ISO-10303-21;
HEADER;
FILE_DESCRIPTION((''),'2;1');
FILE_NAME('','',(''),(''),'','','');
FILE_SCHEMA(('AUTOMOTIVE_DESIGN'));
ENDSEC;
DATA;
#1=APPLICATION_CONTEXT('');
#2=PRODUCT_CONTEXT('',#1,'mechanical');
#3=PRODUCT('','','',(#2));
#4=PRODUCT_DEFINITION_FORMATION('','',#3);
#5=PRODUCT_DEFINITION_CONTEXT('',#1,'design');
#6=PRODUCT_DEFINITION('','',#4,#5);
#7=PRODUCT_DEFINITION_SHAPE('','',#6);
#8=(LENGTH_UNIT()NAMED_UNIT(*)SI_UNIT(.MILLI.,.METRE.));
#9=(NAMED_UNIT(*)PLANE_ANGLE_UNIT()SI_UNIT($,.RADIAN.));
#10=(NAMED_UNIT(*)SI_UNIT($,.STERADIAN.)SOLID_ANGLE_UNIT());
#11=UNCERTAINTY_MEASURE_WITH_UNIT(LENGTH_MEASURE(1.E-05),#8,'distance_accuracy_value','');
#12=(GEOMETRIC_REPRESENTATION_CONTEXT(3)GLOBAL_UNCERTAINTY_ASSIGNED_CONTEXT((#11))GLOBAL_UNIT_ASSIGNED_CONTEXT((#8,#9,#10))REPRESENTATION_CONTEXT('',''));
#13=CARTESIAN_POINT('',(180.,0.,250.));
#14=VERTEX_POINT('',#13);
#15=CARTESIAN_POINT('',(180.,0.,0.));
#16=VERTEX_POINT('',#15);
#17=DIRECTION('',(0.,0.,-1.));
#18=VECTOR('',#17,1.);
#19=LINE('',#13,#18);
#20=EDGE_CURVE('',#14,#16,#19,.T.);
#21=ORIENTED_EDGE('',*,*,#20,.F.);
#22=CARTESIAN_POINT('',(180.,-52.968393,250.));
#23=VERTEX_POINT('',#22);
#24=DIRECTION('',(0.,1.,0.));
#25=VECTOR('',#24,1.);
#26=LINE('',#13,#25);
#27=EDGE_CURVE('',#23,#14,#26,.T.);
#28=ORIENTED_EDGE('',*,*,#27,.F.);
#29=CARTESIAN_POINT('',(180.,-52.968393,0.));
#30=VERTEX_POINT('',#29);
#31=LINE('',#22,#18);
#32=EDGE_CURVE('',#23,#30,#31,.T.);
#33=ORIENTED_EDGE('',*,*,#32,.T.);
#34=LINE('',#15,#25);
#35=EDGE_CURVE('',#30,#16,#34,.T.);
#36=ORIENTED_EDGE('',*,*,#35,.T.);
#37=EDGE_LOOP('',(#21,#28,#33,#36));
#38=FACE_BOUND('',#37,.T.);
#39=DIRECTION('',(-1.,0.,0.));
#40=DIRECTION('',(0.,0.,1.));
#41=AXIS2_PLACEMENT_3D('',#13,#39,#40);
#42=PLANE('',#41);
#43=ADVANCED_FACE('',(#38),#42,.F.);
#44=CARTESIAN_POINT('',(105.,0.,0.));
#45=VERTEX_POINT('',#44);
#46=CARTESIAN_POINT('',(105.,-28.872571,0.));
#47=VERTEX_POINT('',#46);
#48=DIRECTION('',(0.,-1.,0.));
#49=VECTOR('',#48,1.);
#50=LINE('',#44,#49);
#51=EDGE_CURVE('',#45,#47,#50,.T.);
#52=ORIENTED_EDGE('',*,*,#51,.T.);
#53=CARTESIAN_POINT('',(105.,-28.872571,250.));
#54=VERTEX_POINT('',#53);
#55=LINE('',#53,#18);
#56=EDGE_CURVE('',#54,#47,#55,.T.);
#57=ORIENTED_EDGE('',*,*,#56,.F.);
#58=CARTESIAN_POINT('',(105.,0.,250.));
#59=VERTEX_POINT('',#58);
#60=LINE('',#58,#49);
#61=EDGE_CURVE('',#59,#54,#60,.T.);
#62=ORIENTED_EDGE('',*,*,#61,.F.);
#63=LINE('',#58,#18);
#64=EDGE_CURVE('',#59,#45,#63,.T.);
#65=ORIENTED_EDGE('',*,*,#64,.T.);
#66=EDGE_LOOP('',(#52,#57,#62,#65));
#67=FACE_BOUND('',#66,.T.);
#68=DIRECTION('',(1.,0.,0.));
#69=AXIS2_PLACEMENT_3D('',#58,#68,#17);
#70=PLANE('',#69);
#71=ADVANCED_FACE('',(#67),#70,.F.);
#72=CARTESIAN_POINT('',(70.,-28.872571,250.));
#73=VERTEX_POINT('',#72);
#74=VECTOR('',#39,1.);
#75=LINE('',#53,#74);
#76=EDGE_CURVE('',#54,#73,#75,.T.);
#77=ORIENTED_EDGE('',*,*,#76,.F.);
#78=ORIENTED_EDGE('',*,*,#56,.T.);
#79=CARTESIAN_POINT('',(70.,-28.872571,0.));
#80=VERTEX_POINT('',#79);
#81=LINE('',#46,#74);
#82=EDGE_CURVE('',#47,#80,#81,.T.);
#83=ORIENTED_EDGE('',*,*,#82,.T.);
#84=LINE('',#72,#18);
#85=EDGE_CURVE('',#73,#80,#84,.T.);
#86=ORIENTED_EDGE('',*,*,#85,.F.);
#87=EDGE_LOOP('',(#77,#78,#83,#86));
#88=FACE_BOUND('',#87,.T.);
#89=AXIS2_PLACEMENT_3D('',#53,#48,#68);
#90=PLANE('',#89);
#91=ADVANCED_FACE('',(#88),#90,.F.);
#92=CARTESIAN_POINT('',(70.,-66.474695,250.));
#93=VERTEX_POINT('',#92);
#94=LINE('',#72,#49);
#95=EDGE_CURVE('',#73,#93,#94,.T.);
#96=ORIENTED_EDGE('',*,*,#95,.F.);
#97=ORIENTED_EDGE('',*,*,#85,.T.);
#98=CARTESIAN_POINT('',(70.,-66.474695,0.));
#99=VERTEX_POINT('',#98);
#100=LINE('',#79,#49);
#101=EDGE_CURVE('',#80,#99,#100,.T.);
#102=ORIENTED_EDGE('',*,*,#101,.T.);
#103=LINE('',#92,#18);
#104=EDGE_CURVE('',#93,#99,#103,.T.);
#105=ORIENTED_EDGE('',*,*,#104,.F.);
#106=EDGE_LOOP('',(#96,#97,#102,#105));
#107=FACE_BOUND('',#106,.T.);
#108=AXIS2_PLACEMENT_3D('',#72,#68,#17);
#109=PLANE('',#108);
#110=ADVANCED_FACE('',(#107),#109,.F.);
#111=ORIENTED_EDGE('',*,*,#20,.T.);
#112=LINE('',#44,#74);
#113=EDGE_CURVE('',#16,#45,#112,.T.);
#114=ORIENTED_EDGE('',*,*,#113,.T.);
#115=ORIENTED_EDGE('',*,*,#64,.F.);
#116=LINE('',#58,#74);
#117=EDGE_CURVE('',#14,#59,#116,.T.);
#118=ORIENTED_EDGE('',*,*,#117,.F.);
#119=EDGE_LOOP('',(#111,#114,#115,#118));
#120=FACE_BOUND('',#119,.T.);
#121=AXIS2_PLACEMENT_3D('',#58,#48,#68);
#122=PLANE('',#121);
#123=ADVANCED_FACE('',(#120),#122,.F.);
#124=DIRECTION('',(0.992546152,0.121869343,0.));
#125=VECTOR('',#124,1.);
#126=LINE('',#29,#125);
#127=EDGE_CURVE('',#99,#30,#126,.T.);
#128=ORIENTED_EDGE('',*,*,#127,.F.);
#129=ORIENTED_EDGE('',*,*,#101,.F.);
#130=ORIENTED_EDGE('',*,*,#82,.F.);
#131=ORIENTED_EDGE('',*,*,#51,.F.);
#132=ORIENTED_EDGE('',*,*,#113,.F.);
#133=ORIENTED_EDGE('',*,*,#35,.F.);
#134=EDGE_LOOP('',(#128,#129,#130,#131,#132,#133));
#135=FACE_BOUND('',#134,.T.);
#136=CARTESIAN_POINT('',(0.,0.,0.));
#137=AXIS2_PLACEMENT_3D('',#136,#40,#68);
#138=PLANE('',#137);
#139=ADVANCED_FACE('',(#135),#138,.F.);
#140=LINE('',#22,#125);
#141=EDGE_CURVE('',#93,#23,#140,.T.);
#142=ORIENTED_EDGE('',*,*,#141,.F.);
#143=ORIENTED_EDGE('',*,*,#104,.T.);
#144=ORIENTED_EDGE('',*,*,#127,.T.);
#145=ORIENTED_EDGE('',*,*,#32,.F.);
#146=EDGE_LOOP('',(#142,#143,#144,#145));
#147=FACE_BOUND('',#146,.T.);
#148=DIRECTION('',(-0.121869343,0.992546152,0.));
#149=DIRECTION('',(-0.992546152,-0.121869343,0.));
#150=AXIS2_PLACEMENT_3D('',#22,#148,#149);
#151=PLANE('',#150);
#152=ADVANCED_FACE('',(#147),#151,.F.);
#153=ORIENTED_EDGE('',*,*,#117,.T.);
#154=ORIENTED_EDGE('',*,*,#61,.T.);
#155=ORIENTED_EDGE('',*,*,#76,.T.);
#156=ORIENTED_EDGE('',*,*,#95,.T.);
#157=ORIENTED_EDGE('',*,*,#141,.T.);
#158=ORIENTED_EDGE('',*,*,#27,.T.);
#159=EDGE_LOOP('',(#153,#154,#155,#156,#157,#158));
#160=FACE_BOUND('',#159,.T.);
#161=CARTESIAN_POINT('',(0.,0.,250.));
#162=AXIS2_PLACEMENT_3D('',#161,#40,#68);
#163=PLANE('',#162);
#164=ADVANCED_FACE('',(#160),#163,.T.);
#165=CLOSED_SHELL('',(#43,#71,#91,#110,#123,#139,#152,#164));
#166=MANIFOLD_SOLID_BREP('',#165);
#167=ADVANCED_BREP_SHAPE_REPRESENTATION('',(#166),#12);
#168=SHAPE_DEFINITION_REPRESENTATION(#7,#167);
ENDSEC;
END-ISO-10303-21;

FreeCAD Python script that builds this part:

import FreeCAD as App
import Part
import Sketcher
from FreeCAD import Vector
Q = App.Units.Quantity

doc = App.newDocument("Part")
body = doc.addObject("PartDesign::Body", "Body")

# Sketch on XY plane
sketch1 = doc.addObject("Sketcher::SketchObject", "Sketch")
body.addObject(sketch1)
sketch1.AttachmentSupport = (doc.XY_Plane, [""])
sketch1.MapMode = "FlatFace"
sketch1.addGeometry(Part.LineSegment(Vector(180, 0, 0), Vector(105, 0, 0)), False)
sketch1.addGeometry(Part.LineSegment(Vector(105, 0, 0), Vector(105, -29, 0)), False)
sketch1.addGeometry(Part.LineSegment(Vector(105, -29, 0), Vector(70, -29, 0)), False)
sketch1.addGeometry(Part.LineSegment(Vector(70, -29, 0), Vector(70, -66, 0)), False)
sketch1.addGeometry(Part.LineSegment(Vector(70, -66, 0), Vector(180, -53, 0)), False)
sketch1.addGeometry(Part.LineSegment(Vector(180, -53, 0), Vector(180, 0, 0)), False)
sketch1.addConstraint(Sketcher.Constraint("Coincident", 0, 2, 1, 1))
sketch1.addConstraint(Sketcher.Constraint("Coincident", 1, 2, 2, 1))
sketch1.addConstraint(Sketcher.Constraint("Coincident", 2, 2, 3, 1))
sketch1.addConstraint(Sketcher.Constraint("Coincident", 3, 2, 4, 1))
sketch1.addConstraint(Sketcher.Constraint("Coincident", 4, 2, 5, 1))
sketch1.addConstraint(Sketcher.Constraint("Coincident", 5, 2, 0, 1))
sketch1.addConstraint(Sketcher.Constraint("Horizontal", 0))
sketch1.addConstraint(Sketcher.Constraint("Vertical", 1))
sketch1.addConstraint(Sketcher.Constraint("Horizontal", 2))
sketch1.addConstraint(Sketcher.Constraint("Vertical", 3))
sketch1.addConstraint(Sketcher.Constraint("Vertical", 5))
sketch1.addConstraint(Sketcher.Constraint("PointOnObject", 0, 2, -1))
sketch1.addConstraint(Sketcher.Constraint("DistanceX", 0, 2, 0, 1, 75.0))
sketch1.addConstraint(Sketcher.Constraint("DistanceX", 2, 2, 2, 1, 35.0))
sketch1.addConstraint(Sketcher.Constraint("Angle", 4, Q("7 deg")))
sketch1.addConstraint(Sketcher.Constraint("DistanceX", -1, 1, 0, 2, 105.0))
sketch1.addConstraint(Sketcher.Constraint("DistanceY", 1, 2, 1, 1, 28.872571))
sketch1.addConstraint(Sketcher.Constraint("DistanceY", 3, 2, 3, 1, 37.602123))
pad1 = doc.addObject("PartDesign::Pad", "Pad")
body.addObject(pad1)
pad1.Profile = sketch1
pad1.Length = 250

doc.recompute()
